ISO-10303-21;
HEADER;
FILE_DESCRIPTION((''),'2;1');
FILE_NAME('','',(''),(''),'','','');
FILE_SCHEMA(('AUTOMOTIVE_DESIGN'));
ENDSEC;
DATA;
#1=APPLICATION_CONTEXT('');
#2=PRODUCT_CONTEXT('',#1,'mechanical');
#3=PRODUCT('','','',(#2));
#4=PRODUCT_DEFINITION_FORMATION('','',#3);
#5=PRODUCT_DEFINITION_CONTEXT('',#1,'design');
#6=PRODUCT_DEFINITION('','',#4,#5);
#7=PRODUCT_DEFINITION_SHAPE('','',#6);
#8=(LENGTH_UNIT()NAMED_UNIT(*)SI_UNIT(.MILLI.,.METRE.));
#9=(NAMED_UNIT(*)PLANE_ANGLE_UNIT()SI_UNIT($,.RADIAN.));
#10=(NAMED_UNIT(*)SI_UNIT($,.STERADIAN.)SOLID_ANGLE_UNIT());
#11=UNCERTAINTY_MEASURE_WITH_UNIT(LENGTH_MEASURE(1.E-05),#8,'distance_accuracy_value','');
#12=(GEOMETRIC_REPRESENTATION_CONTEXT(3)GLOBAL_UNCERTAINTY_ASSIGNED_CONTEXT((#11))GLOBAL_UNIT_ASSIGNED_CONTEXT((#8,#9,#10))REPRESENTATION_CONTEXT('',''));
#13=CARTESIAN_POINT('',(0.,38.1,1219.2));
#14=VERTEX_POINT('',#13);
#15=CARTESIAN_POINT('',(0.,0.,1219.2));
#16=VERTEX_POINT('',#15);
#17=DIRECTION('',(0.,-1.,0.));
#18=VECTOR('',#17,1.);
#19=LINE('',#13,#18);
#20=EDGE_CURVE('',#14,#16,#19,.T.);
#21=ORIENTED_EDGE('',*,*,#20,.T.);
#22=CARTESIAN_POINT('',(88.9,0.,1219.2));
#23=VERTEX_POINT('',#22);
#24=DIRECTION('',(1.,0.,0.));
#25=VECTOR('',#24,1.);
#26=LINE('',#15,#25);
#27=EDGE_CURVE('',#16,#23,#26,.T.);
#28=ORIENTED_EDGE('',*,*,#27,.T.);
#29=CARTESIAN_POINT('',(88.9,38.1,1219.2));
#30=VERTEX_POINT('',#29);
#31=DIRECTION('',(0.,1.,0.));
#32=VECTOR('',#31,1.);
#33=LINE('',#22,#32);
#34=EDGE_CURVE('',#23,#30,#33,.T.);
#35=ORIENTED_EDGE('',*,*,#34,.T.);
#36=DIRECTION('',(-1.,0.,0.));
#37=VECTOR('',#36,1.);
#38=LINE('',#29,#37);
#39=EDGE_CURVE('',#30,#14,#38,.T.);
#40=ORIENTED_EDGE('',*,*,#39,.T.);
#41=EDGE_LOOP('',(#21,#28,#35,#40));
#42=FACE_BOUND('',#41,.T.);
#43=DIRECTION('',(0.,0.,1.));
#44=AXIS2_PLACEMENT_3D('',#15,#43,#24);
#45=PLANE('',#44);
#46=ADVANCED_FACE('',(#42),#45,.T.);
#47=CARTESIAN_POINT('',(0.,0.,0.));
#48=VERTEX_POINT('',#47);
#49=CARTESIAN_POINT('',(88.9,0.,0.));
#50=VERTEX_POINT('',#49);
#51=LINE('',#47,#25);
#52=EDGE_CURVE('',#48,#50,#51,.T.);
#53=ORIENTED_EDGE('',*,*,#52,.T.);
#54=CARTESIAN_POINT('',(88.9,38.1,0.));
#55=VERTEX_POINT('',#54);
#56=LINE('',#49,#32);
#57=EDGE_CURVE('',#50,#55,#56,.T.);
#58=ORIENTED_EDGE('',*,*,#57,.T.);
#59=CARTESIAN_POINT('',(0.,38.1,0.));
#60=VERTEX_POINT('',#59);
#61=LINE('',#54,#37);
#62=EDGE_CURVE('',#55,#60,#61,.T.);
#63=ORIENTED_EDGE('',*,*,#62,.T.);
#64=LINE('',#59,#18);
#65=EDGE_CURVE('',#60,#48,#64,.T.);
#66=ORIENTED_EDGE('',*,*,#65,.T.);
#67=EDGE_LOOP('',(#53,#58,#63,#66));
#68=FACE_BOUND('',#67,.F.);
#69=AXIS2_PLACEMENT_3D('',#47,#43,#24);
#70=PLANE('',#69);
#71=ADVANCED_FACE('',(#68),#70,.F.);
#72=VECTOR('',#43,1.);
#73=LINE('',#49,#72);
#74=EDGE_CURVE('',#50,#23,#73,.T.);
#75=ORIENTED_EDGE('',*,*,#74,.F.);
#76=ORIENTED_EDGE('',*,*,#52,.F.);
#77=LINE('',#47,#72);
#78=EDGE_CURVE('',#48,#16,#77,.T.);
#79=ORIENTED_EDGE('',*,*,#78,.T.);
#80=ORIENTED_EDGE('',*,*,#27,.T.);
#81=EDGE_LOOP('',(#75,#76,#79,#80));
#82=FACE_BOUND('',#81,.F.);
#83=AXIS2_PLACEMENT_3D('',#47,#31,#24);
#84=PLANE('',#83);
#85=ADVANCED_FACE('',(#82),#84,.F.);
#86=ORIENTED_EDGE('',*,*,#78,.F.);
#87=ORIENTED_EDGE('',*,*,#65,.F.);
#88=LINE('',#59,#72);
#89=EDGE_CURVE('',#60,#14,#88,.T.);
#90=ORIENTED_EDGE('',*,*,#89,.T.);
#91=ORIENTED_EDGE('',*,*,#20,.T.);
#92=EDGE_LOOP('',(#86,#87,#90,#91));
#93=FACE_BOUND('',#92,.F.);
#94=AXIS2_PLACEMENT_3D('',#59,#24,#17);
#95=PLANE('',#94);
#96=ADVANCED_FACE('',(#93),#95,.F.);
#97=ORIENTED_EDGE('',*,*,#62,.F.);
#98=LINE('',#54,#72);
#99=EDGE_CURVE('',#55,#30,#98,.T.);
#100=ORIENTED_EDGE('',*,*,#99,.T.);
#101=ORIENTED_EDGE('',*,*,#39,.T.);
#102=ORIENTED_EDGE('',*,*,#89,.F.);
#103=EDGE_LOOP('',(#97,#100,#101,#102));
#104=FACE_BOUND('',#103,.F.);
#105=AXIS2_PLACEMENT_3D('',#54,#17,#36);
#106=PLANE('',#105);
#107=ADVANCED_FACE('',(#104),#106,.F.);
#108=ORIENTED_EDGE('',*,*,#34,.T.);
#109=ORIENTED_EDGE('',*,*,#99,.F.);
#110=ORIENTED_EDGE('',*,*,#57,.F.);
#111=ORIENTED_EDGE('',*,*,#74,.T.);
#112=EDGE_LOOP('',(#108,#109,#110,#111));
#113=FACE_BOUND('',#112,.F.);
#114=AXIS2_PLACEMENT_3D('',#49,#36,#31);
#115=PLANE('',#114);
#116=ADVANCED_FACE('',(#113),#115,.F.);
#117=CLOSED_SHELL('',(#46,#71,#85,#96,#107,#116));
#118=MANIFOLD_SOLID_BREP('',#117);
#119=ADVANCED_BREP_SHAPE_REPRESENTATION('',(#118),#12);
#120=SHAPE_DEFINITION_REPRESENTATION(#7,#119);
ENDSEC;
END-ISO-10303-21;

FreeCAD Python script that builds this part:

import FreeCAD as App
import Part
import Sketcher
from FreeCAD import Vector
Q = App.Units.Quantity

doc = App.newDocument("Part")
params = doc.addObject("Spreadsheet::Sheet", "Params")
for row, (alias, value) in enumerate([
    ("sketch1_width", "3.5 in"),
    ("sketch1_height", "1.5 in"),
    ("pad1_length", "48 in"),
], start=1):
    params.set(f"A{row}", alias)
    params.set(f"B{row}", "=" + value)
    params.setAlias(f"B{row}", alias)

body = doc.addObject("PartDesign::Body", "Body")

# Sketch on XY plane
sketch1 = body.newObject("Sketcher::SketchObject", "Sketch")
sketch1.AttachmentSupport = (doc.getObject("XY_Plane"), [""])
sketch1.MapMode = "FlatFace"
sketch1.addGeometry([
    Part.LineSegment(Vector(0, 38, 0), Vector(0, 0, 0)),
    Part.LineSegment(Vector(0, 0, 0), Vector(89, 0, 0)),
    Part.LineSegment(Vector(89, 0, 0), Vector(89, 38, 0)),
    Part.LineSegment(Vector(89, 38, 0), Vector(0, 38, 0)),
], False)
sketch1.addConstraint([
    Sketcher.Constraint("Coincident", 0, 2, 1, 1),
    Sketcher.Constraint("Coincident", 1, 2, 2, 1),
    Sketcher.Constraint("Coincident", 2, 2, 3, 1),
    Sketcher.Constraint("Coincident", 3, 2, 0, 1),
    Sketcher.Constraint("Vertical", 0),
    Sketcher.Constraint("Horizontal", 1),
    Sketcher.Constraint("Vertical", 2),
    Sketcher.Constraint("Horizontal", 3),
    Sketcher.Constraint("Coincident", 0, 2, -1, 1),
    Sketcher.Constraint("DistanceX", 1, 1, 1, 2, Q("3.5 in")),
    Sketcher.Constraint("DistanceY", 0, 2, 0, 1, Q("1.5 in")),
])
sketch1.setExpression("Constraints[9]", "Params.sketch1_width")
sketch1.setExpression("Constraints[10]", "Params.sketch1_height")
pad1 = body.newObject("PartDesign::Pad", "Pad")
pad1.Profile = sketch1
pad1.setExpression("Length", "Params.pad1_length")

doc.recompute()
